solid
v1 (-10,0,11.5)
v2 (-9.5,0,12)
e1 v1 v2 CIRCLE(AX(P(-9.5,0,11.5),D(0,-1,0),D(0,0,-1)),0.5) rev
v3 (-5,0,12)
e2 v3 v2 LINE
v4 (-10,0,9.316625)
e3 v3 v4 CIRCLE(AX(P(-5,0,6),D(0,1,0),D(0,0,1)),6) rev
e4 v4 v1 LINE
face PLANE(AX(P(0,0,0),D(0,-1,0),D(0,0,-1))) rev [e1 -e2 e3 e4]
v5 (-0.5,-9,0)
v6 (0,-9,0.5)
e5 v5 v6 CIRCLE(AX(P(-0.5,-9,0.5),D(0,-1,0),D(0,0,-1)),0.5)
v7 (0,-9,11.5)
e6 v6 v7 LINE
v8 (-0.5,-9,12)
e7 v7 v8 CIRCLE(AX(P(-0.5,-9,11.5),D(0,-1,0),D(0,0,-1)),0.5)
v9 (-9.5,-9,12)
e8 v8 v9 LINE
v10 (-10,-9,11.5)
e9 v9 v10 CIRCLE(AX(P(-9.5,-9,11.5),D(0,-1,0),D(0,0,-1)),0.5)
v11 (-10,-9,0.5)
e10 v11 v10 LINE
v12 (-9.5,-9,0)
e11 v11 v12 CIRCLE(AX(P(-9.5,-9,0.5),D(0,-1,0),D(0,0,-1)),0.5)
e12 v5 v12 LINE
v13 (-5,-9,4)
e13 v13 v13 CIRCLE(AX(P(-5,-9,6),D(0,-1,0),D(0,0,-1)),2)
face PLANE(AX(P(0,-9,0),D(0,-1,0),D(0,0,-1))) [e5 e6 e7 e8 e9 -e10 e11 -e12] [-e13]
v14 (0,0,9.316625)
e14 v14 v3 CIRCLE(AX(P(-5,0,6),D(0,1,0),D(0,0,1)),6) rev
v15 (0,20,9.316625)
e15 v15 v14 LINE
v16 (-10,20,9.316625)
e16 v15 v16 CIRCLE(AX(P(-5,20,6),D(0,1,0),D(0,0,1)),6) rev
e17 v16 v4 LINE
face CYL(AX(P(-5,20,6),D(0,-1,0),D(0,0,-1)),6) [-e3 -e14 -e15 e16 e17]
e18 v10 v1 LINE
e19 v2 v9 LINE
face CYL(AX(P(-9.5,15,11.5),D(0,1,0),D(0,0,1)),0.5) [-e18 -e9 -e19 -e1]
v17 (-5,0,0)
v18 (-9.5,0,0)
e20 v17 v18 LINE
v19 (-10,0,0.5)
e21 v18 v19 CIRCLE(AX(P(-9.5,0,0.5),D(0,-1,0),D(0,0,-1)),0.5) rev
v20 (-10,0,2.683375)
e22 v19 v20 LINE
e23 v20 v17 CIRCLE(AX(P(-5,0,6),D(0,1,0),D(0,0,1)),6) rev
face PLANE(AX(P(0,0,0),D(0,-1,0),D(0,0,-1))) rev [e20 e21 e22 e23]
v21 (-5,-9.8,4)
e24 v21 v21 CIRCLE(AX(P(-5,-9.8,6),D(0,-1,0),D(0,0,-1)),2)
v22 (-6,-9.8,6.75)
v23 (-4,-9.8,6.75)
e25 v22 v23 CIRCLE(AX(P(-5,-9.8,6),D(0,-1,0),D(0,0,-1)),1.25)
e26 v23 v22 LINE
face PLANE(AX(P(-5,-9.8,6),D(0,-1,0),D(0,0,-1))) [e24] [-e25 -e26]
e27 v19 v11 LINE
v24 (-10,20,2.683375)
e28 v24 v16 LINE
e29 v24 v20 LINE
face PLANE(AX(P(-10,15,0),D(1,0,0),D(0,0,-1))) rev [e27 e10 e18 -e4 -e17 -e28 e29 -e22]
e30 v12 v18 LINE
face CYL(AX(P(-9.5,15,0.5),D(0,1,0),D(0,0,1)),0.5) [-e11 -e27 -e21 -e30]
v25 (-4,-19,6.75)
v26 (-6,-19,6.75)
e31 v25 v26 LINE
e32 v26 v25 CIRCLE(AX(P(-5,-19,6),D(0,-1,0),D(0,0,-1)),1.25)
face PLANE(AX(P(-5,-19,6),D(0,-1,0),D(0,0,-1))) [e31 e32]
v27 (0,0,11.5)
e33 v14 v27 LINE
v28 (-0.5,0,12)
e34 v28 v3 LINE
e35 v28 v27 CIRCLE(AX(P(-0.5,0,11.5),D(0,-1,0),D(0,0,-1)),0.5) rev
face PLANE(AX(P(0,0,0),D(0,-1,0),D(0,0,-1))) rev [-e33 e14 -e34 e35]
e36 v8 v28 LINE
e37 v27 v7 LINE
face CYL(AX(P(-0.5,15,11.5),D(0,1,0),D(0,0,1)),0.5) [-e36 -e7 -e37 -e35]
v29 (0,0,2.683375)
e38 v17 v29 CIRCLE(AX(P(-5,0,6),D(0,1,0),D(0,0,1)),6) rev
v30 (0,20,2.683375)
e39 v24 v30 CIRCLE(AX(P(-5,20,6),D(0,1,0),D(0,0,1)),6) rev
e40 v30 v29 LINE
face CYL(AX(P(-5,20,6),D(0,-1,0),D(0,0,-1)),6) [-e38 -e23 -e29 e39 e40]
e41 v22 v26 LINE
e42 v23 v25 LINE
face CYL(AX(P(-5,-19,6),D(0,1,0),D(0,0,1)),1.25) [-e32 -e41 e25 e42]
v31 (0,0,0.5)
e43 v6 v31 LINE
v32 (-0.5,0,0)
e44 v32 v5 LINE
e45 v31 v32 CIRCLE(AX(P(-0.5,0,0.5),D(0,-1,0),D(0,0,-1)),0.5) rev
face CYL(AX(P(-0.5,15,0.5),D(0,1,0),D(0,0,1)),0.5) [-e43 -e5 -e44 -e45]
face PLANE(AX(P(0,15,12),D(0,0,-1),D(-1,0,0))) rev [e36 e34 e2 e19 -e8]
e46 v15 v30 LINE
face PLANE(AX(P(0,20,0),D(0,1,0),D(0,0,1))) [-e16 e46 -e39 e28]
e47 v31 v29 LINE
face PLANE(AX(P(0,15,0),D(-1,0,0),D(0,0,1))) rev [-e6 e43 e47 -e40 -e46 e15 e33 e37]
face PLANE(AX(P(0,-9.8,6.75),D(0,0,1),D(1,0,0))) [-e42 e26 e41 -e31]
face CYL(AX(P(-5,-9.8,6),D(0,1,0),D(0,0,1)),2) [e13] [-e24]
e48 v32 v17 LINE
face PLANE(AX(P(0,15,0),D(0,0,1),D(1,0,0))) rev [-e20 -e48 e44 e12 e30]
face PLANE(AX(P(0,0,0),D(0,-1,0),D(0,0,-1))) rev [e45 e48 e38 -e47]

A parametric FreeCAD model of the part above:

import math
import FreeCAD as App
import Part
import Sketcher


def edges_at(feature, points):
    """Names of the edges that pass closest to the given points."""
    edges = feature.Shape.Edges
    near = lambda p: min(range(len(edges)), key=lambda i: edges[i].distToShape(Part.Vertex(*p))[0])
    return sorted({f"Edge{near(p) + 1}" for p in points})


def add_polygon(sketch, points):
    """Adds a closed chain of lines whose ends are joined by coincident constraints."""
    first, n = sketch.GeometryCount, len(points)
    for a, b in zip(points, points[1:] + points[:1]):
        sketch.addGeometry(Part.LineSegment(App.Vector(*a, 0), App.Vector(*b, 0)), False)
    for i in range(n):
        sketch.addConstraint(Sketcher.Constraint("Coincident", first + i, 2, first + (i + 1) % n, 1))

doc = App.newDocument("Part")
body = doc.addObject("PartDesign::Body", "Body")

# Sketch on XZ plane
sketch1 = body.newObject("Sketcher::SketchObject", "Sketch")
sketch1.AttachmentSupport = (doc.getObject("XZ_Plane"), [""])
sketch1.MapMode = "FlatFace"
add_polygon(sketch1, [(-10, 0), (-10, 12), (0, 12), (0, 0)])  # lines 0-3
sketch1.addConstraint([
    Sketcher.Constraint("Vertical", 0),
    Sketcher.Constraint("Horizontal", 1),
    Sketcher.Constraint("Vertical", 2),
    Sketcher.Constraint("Horizontal", 3),
    Sketcher.Constraint("Coincident", 2, 2, -1, 1),
    Sketcher.Constraint("DistanceX", 1, 1, 1, 2, 10.0),
    Sketcher.Constraint("DistanceY", 0, 1, 0, 2, 12.0),
])
pad1 = body.newObject("PartDesign::Pad", "Pad")
pad1.Profile = sketch1
pad1.Length = 15
pad1.Reversed = True
doc.recompute()

fillet = body.newObject("PartDesign::Fillet", "Fillet")
fillet.Base = (pad1, edges_at(pad1, [(0, 7.5, 0)]))
fillet.Radius = 2.5
doc.recompute()

fillet2 = body.newObject("PartDesign::Fillet", "Fillet001")
fillet2.Base = (fillet, edges_at(fillet, [(-10, 7.5, 0)]))
fillet2.Radius = 2.5
doc.recompute()

fillet3 = body.newObject("PartDesign::Fillet", "Fillet002")
fillet3.Base = (fillet2, edges_at(fillet2, [(-10, 7.5, 12)]))
fillet3.Radius = 2.5
doc.recompute()

fillet4 = body.newObject("PartDesign::Fillet", "Fillet003")
fillet4.Base = (fillet3, edges_at(fillet3, [(0, 7.5, 12)]))
fillet4.Radius = 2.5

# Sketch on XZ plane
sketch2 = body.newObject("Sketcher::SketchObject", "Sketch001")
sketch2.AttachmentSupport = (doc.getObject("XZ_Plane"), [""])
sketch2.MapMode = "FlatFace"
add_polygon(sketch2, [(0, 0), (0, 12), (-10, 12), (-10, 0)])  # lines 0-3
sketch2.addConstraint([
    Sketcher.Constraint("Vertical", 0),
    Sketcher.Constraint("Horizontal", 1),
    Sketcher.Constraint("Vertical", 2),
    Sketcher.Constraint("Horizontal", 3),
    Sketcher.Constraint("Coincident", 3, 2, -1, 1),
    Sketcher.Constraint("DistanceX", 1, 2, 1, 1, 10.0),
    Sketcher.Constraint("DistanceY", 0, 1, 0, 2, 12.0),
])
pad2 = body.newObject("PartDesign::Pad", "Pad001")
pad2.Profile = sketch2
pad2.Length = 9
doc.recompute()

fillet5 = body.newObject("PartDesign::Fillet", "Fillet004")
fillet5.Base = (pad2, edges_at(pad2, [
    (0, -4.5, 12),
    (-10, -4.5, 12),
    (-10, -4.5, 0),
    (0, -4.5, 0),
]))
fillet5.Radius = 0.5

# Sketch on XZ plane
sketch3 = body.newObject("Sketcher::SketchObject", "Sketch002")
sketch3.AttachmentSupport = (doc.getObject("XZ_Plane"), [""])
sketch3.MapMode = "FlatFace"
sketch3.AttachmentOffset = App.Placement(App.Vector(0, 0, 9), App.Rotation())
sketch3.addGeometry([
    Part.Circle(App.Vector(-5, 6, 0), App.Vector(0, 0, 1), 2),
    Part.Circle(App.Vector(-5, 6, 0), App.Vector(0, 0, 1), 1.25),
], False)
sketch3.addConstraint([
    Sketcher.Constraint("Coincident", 1, 3, 0, 3),
    Sketcher.Constraint("Diameter", 0, 4.0),
    Sketcher.Constraint("Diameter", 1, 2.5),
    Sketcher.Constraint("DistanceX", 0, 3, -1, 1, 5.0),
    Sketcher.Constraint("DistanceY", -1, 1, 0, 3, 6.0),
])
pad3 = body.newObject("PartDesign::Pad", "Pad002")
pad3.Profile = sketch3
pad3.Length = 0.8

# Sketch on XZ plane
sketch4 = body.newObject("Sketcher::SketchObject", "Sketch003")
sketch4.AttachmentSupport = (doc.getObject("XZ_Plane"), [""])
sketch4.MapMode = "FlatFace"
sketch4.AttachmentOffset = App.Placement(App.Vector(0, 0, 9), App.Rotation())
sketch4.addGeometry(Part.Circle(App.Vector(-5, 6, 0), App.Vector(0, 0, 1), 1.25), False)
sketch4.addConstraint([
    Sketcher.Constraint("Diameter", 0, 2.5),
    Sketcher.Constraint("DistanceX", 0, 3, -1, 1, 5.0),
    Sketcher.Constraint("DistanceY", -1, 1, 0, 3, 6.0),
])
pad4 = body.newObject("PartDesign::Pad", "Pad003")
pad4.Profile = sketch4
pad4.Length = 10

# Sketch on XZ plane
sketch5 = body.newObject("Sketcher::SketchObject", "Sketch004")
sketch5.AttachmentSupport = (doc.getObject("XZ_Plane"), [""])
sketch5.MapMode = "FlatFace"
sketch5.AttachmentOffset = App.Placement(App.Vector(0, 0, 19), App.Rotation())
sketch5.addGeometry([
    Part.LineSegment(App.Vector(-6, 6.75, 0), App.Vector(-4, 6.75, 0)),
    Part.ArcOfCircle(Part.Circle(App.Vector(-5, 6, 0), App.Vector(0, 0, 1), 1.25), math.radians(36.869898), math.radians(143.130102)),
], False)
sketch5.addConstraint([
    Sketcher.Constraint("Coincident", 0, 1, 1, 2),
    Sketcher.Constraint("Coincident", 1, 1, 0, 2),
    Sketcher.Constraint("Horizontal", 0),
    Sketcher.Constraint("DistanceX", 0, 1, 0, 2, 2.0),
    Sketcher.Constraint("Radius", 1, 1.25),
    Sketcher.Constraint("DistanceX", 1, 3, -1, 1, 5.0),
    Sketcher.Constraint("DistanceY", -1, 1, 1, 3, 6.0),
])
pocket1 = body.newObject("PartDesign::Pocket", "Pocket")
pocket1.Profile = sketch5
pocket1.Length = 9.2

# Sketch on XZ plane
sketch6 = body.newObject("Sketcher::SketchObject", "Sketch005")
sketch6.AttachmentSupport = (doc.getObject("XZ_Plane"), [""])
sketch6.MapMode = "FlatFace"
sketch6.AttachmentOffset = App.Placement(App.Vector(0, 0, -15), App.Rotation())
sketch6.addGeometry([
    Part.LineSegment(App.Vector(-7.5, 12, 0), App.Vector(-2.5, 12, 0)),  # 0
    Part.ArcOfCircle(Part.Circle(App.Vector(-2.5, 9.5, 0), App.Vector(0, 0, 1), 2.5), math.radians(0), math.radians(90)),  # 1
    Part.LineSegment(App.Vector(0, 9.5, 0), App.Vector(0, 2.5, 0)),  # 2
    Part.ArcOfCircle(Part.Circle(App.Vector(-2.5, 2.5, 0), App.Vector(0, 0, 1), 2.5), math.radians(-90), math.radians(0)),  # 3
    Part.LineSegment(App.Vector(-2.5, 0, 0), App.Vector(-7.5, 0, 0)),  # 4
    Part.ArcOfCircle(Part.Circle(App.Vector(-7.5, 2.5, 0), App.Vector(0, 0, 1), 2.5), math.radians(180), math.radians(270)),  # 5
    Part.LineSegment(App.Vector(-10, 2.5, 0), App.Vector(-10, 9.5, 0)),  # 6
    Part.ArcOfCircle(Part.Circle(App.Vector(-7.5, 9.5, 0), App.Vector(0, 0, 1), 2.5), math.radians(90), math.radians(180)),  # 7
], False)
sketch6.addConstraint([
    Sketcher.Constraint("Tangent", 0, 2, 1, 2),
    Sketcher.Constraint("Tangent", 1, 1, 2, 1),
    Sketcher.Constraint("Tangent", 2, 2, 3, 2),
    Sketcher.Constraint("Tangent", 3, 1, 4, 1),
    Sketcher.Constraint("Tangent", 4, 2, 5, 2),
    Sketcher.Constraint("Tangent", 5, 1, 6, 1),
    Sketcher.Constraint("Tangent", 6, 2, 7, 2),
    Sketcher.Constraint("Tangent", 7, 1, 0, 1),
    Sketcher.Constraint("Horizontal", 0),
    Sketcher.Constraint("Vertical", 2),
    Sketcher.Constraint("Horizontal", 4),
    Sketcher.Constraint("Vertical", 6),
    Sketcher.Constraint("Equal", 1, 3),
    Sketcher.Constraint("Equal", 3, 5),
    Sketcher.Constraint("Equal", 5, 7),
    Sketcher.Constraint("PointOnObject", 1, 1, -2),
    Sketcher.Constraint("PointOnObject", 3, 1, -1),
    Sketcher.Constraint("Radius", 1, 2.5),
    Sketcher.Constraint("DistanceX", 0, 1, 0, 2, 5.0),
    Sketcher.Constraint("DistanceY", 2, 2, 2, 1, 7.0),
])
pocket2 = body.newObject("PartDesign::Pocket", "Pocket001")
pocket2.Profile = sketch6
pocket2.Length = 15
pocket2.Reversed = True

# Sketch on XZ plane
sketch7 = body.newObject("Sketcher::SketchObject", "Sketch006")
sketch7.AttachmentSupport = (doc.getObject("XZ_Plane"), [""])
sketch7.MapMode = "FlatFace"
sketch7.addGeometry([
    Part.LineSegment(App.Vector(0, 9.316625, 0), App.Vector(0, 2.683375, 0)),
    Part.ArcOfCircle(Part.Circle(App.Vector(-5, 6, 0), App.Vector(0, 0, 1), 6), math.radians(-146.44269), math.radians(-33.55731)),
    Part.LineSegment(App.Vector(-10, 2.683375, 0), App.Vector(-10, 9.316625, 0)),
    Part.ArcOfCircle(Part.Circle(App.Vector(-5, 6, 0), App.Vector(0, 0, 1), 6), math.radians(33.55731), math.radians(146.44269)),
], False)
sketch7.addConstraint([
    Sketcher.Constraint("Coincident", 0, 2, 1, 2),
    Sketcher.Constraint("Coincident", 1, 1, 2, 1),
    Sketcher.Constraint("Coincident", 2, 2, 3, 2),
    Sketcher.Constraint("Coincident", 3, 1, 0, 1),
    Sketcher.Constraint("Vertical", 0),
    Sketcher.Constraint("Vertical", 2),
    Sketcher.Constraint("Coincident", 3, 3, 1, 3),
    Sketcher.Constraint("Equal", 1, 3),
    Sketcher.Constraint("PointOnObject", 0, 2, -2),
    Sketcher.Constraint("Horizontal", 0, 2, 1, 1),
    Sketcher.Constraint("Radius", 1, 6.0),
    Sketcher.Constraint("DistanceX", 1, 3, -1, 1, 5.0),
    Sketcher.Constraint("DistanceY", -1, 1, 1, 3, 6.0),
])
pad5 = body.newObject("PartDesign::Pad", "Pad004")
pad5.Profile = sketch7
pad5.Length = 20
pad5.Reversed = True

doc.recompute()
